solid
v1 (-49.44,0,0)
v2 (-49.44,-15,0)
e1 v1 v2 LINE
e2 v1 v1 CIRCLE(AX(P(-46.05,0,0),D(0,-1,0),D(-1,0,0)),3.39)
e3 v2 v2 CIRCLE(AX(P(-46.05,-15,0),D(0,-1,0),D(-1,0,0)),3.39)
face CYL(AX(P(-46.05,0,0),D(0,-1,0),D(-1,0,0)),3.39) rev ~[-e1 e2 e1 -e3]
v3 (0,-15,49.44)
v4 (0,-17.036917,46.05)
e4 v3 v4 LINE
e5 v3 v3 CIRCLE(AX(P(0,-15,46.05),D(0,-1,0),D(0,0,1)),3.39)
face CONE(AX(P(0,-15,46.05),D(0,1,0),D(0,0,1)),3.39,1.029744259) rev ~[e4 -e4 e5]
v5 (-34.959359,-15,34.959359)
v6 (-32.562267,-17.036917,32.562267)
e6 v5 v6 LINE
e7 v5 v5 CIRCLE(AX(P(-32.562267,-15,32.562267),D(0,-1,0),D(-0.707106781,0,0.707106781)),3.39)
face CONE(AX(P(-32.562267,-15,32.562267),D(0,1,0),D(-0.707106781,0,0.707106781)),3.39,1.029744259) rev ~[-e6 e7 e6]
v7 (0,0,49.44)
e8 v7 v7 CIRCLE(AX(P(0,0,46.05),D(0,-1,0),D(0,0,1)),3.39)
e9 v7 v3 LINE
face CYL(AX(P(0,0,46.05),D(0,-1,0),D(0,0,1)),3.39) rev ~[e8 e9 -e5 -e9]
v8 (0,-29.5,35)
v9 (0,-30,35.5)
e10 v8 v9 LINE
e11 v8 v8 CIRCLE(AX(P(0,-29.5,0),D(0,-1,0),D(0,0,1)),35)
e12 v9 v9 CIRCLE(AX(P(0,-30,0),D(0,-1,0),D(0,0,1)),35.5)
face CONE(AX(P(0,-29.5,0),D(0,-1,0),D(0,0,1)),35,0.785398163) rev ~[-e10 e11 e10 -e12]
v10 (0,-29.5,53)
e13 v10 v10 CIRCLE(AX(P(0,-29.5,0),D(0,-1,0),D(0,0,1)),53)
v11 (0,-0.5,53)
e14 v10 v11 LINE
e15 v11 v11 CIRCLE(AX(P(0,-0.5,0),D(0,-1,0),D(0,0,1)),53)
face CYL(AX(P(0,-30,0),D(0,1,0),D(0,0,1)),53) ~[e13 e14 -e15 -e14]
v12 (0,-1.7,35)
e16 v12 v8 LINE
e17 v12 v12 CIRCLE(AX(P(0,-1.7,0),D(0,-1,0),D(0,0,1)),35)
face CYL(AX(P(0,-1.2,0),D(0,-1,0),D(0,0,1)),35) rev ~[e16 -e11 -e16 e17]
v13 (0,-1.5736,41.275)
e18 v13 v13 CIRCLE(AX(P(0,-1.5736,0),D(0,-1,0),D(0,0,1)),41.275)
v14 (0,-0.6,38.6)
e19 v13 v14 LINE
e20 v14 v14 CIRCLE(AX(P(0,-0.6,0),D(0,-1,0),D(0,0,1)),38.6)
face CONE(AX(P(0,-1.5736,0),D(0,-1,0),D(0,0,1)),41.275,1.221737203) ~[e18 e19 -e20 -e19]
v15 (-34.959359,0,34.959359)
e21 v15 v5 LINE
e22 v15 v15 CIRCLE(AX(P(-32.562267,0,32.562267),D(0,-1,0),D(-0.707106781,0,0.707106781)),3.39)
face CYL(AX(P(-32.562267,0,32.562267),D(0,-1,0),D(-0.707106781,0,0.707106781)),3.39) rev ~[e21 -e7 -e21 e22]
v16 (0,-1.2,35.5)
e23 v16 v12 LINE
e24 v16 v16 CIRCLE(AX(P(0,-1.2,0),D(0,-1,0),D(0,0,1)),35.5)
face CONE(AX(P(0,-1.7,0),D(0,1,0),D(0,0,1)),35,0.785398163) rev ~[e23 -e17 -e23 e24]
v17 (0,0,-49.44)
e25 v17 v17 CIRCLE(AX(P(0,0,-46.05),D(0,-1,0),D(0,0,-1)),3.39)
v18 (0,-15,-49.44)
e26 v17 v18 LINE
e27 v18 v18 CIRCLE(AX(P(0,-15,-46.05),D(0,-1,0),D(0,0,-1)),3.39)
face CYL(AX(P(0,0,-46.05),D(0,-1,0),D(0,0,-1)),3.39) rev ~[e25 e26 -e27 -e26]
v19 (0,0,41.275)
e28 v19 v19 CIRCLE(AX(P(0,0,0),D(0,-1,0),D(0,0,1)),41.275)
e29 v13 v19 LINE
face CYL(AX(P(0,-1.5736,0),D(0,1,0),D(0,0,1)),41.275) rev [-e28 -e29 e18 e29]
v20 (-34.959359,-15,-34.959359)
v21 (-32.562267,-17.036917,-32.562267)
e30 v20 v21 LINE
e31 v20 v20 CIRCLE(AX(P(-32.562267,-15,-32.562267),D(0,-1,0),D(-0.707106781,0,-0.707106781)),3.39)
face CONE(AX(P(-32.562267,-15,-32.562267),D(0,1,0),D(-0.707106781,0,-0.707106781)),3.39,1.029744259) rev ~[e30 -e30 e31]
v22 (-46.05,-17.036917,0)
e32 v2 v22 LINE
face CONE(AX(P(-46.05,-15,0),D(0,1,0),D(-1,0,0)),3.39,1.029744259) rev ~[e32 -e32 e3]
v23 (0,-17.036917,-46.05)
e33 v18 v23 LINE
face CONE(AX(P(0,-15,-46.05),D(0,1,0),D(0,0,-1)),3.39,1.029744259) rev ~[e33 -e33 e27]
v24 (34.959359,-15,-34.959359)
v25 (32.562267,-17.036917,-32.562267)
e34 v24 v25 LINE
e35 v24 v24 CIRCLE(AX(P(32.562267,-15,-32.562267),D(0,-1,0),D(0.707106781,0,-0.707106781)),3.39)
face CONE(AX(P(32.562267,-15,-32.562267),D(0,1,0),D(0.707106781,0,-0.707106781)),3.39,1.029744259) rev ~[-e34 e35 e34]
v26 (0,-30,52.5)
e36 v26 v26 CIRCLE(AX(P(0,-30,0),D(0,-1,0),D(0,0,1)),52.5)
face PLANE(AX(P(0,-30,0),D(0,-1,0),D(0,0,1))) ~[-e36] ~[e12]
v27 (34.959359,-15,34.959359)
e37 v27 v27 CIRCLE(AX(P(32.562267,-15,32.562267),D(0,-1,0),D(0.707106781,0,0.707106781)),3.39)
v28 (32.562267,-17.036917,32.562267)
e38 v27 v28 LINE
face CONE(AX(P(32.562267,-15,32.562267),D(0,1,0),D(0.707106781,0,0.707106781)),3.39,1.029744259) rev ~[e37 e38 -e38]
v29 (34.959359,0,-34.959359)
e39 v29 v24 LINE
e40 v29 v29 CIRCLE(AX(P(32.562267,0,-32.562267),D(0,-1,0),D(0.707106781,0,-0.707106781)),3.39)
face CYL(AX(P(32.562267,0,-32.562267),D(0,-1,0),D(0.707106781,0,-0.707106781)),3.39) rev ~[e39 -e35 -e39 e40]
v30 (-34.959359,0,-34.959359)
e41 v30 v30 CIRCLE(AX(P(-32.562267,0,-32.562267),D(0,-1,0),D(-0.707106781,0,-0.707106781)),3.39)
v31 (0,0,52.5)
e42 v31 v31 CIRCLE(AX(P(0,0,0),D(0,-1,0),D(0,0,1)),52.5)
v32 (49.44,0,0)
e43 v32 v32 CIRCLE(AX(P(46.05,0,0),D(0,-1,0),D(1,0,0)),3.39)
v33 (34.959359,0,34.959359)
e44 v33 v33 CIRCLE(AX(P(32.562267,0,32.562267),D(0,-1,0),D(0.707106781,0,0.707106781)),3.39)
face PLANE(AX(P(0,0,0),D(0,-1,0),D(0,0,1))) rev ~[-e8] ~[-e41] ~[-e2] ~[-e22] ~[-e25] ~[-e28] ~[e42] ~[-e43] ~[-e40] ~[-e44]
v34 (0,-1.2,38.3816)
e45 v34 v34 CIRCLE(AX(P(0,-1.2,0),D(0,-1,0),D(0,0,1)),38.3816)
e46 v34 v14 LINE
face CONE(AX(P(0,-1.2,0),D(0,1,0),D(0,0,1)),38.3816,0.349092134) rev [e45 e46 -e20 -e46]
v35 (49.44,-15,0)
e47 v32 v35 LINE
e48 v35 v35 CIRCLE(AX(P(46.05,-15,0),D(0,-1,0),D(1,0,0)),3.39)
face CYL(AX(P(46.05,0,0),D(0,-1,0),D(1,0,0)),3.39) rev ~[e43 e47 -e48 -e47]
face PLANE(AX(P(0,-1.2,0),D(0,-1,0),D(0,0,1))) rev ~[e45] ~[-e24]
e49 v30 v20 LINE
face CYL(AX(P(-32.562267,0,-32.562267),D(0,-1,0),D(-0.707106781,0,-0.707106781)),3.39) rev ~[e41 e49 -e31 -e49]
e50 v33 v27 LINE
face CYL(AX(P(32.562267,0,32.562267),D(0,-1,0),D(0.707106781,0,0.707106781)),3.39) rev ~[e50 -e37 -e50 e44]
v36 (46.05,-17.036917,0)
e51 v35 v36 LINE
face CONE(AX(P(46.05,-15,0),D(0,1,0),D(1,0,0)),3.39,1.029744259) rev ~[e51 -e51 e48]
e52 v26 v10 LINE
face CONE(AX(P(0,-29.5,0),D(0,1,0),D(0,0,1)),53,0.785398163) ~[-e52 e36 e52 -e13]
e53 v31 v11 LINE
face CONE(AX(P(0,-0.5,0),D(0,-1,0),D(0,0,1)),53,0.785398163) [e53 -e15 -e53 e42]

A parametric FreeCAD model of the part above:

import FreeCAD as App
import Part
import Sketcher
Q = App.Units.Quantity


def edges_at(feature, points):
    """Names of the edges that pass closest to the given points."""
    edges = feature.Shape.Edges
    near = lambda p: min(range(len(edges)), key=lambda i: edges[i].distToShape(Part.Vertex(*p))[0])
    return sorted({f"Edge{near(p) + 1}" for p in points})


def add_polygon(sketch, points):
    """Adds a closed chain of lines whose ends are joined by coincident constraints."""
    first, n = sketch.GeometryCount, len(points)
    for a, b in zip(points, points[1:] + points[:1]):
        sketch.addGeometry(Part.LineSegment(App.Vector(*a, 0), App.Vector(*b, 0)), False)
    for i in range(n):
        sketch.addConstraint(Sketcher.Constraint("Coincident", first + i, 2, first + (i + 1) % n, 1))

doc = App.newDocument("Part")
body = doc.addObject("PartDesign::Body", "Body")

# Sketch on YZ plane
sketch1 = body.newObject("Sketcher::SketchObject", "Sketch")
sketch1.AttachmentSupport = (doc.getObject("YZ_Plane"), [""])
sketch1.MapMode = "FlatFace"
add_polygon(sketch1, [(-1.2, 35), (-1.2, 38.4), (-0.6, 38.6), (-1.6, 41.3), (0, 41.3), (0, 53), (-30, 53), (-30, 35)])  # lines 0-7
sketch1.addConstraint([
    Sketcher.Constraint("Vertical", 0),
    Sketcher.Constraint("Horizontal", 3),
    Sketcher.Constraint("Vertical", 4),
    Sketcher.Constraint("Horizontal", 5),
    Sketcher.Constraint("Vertical", 6),
    Sketcher.Constraint("Horizontal", 7),
    Sketcher.Constraint("PointOnObject", 3, 2, -2),
    Sketcher.Constraint("Perpendicular", 1, 2),
    Sketcher.Constraint("DistanceX", 5, 2, 5, 1, Q("30 mm")),
    Sketcher.Constraint("DistanceY", -1, 1, 4, 2, Q("53 mm")),
    Sketcher.Constraint("DistanceY", -1, 1, 6, 2, Q("35 mm")),
    Sketcher.Constraint("Angle", 2, Q("109.9996 deg")),
    Sketcher.Constraint("DistanceX", 7, 1, 7, 2, Q("28.8 mm")),
    Sketcher.Constraint("DistanceX", 1, 2, -1, 1, Q("0.6 mm")),
    Sketcher.Constraint("DistanceY", -1, 1, 1, 2, Q("38.6 mm")),
    Sketcher.Constraint("DistanceY", 4, 1, 4, 2, Q("11.725 mm")),
])
revolution = body.newObject("PartDesign::Revolution", "Revolution")
revolution.Profile = sketch1
revolution.ReferenceAxis = (sketch1, ["H_Axis"])
revolution.Angle = 360
doc.recompute()

chamfer = body.newObject("PartDesign::Chamfer", "Chamfer")
chamfer.Base = (revolution, edges_at(revolution, [
    (-32.632, -1.2, 12.656),
    (-32.632, -30, 12.656),
    (-49.413, 0, 19.166),
    (-49.413, -30, 19.166),
]))
chamfer.Size = 0.5

# Sketch on XZ plane
sketch2 = body.newObject("Sketcher::SketchObject", "Sketch001")
sketch2.AttachmentSupport = (doc.getObject("XZ_Plane"), [""])
sketch2.MapMode = "FlatFace"
sketch2.addGeometry(Part.Circle(App.Vector(0, 46, 0), App.Vector(0, 0, 1), 3.4), False)
sketch2.addConstraint([
    Sketcher.Constraint("PointOnObject", 0, 3, -2),
    Sketcher.Constraint("Diameter", 0, Q("6.78 mm")),
    Sketcher.Constraint("DistanceY", -1, 1, 0, 3, Q("46.05 mm")),
])
doc.recompute()
hole = body.newObject("PartDesign::Hole", "Hole")
hole.Profile = sketch2
hole.ThreadType = "None"
hole.Diameter = 6.78
hole.DepthType = "Dimension"
hole.Depth = 15
hole.DrillPoint = "Angled"
hole.DrillPointAngle = 118
hole.Reversed = True
doc.recompute()

polarpattern = body.newObject("PartDesign::PolarPattern", "PolarPattern")
polarpattern.Originals = [hole]
polarpattern.Axis = (doc.getObject("Y_Axis"), [""])
polarpattern.Angle = 360
polarpattern.Occurrences = 8
body.Tip = polarpattern

doc.recompute()
